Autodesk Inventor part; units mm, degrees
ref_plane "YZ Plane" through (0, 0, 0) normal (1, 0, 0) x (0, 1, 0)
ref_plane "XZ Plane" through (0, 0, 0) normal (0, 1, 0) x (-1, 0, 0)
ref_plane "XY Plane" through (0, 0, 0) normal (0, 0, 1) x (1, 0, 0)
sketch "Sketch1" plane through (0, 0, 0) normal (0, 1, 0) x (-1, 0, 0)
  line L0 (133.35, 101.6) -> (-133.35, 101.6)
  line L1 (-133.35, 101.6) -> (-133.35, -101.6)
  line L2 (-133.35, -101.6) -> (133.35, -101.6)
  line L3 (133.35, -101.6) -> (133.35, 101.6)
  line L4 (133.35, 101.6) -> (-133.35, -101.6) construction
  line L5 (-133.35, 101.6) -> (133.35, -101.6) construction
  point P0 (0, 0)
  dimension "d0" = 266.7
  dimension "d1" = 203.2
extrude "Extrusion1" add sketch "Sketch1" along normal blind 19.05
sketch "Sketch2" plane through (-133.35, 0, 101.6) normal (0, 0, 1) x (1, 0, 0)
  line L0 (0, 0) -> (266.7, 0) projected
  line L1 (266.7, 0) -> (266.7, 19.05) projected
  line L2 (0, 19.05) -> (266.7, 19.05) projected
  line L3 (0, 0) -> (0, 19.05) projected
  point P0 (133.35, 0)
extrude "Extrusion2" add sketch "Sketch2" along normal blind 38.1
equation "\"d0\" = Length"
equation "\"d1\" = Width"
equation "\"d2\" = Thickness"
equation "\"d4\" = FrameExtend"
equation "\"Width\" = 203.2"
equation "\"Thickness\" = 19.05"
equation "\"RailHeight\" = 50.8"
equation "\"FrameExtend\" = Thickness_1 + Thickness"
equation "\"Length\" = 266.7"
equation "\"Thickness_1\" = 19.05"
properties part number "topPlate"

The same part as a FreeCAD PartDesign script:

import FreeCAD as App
import Part
import Sketcher

V = App.Vector
Q = App.Units.Quantity

doc = App.newDocument("Part")
body = doc.addObject("PartDesign::Body", "Body")

# Sketch on XZ plane
sketch1 = body.newObject("Sketcher::SketchObject", "Sketch")
sketch1.AttachmentSupport = (doc.getObject("XZ_Plane"), [""])
sketch1.MapMode = "FlatFace"
sketch1.addGeometry(Part.LineSegment(V(-133.35, -101.6, 0), V(-133.35, 101.6, 0)), False)
sketch1.addGeometry(Part.LineSegment(V(-133.35, 101.6, 0), V(133.35, 101.6, 0)), False)
sketch1.addGeometry(Part.LineSegment(V(133.35, 101.6, 0), V(133.35, -101.6, 0)), False)
sketch1.addGeometry(Part.LineSegment(V(133.35, -101.6, 0), V(-133.35, -101.6, 0)), False)
sketch1.addConstraint(Sketcher.Constraint("Coincident", 0, 2, 1, 1))
sketch1.addConstraint(Sketcher.Constraint("Coincident", 1, 2, 2, 1))
sketch1.addConstraint(Sketcher.Constraint("Coincident", 2, 2, 3, 1))
sketch1.addConstraint(Sketcher.Constraint("Coincident", 3, 2, 0, 1))
sketch1.addConstraint(Sketcher.Constraint("Vertical", 0))
sketch1.addConstraint(Sketcher.Constraint("Horizontal", 1))
sketch1.addConstraint(Sketcher.Constraint("Vertical", 2))
sketch1.addConstraint(Sketcher.Constraint("Horizontal", 3))
sketch1.addConstraint(Sketcher.Constraint("Symmetric", 0, 2, 2, 2, -1, 1))
sketch1.addConstraint(Sketcher.Constraint("DistanceY", 0, 1, 0, 2, Q("8 in")))
sketch1.addConstraint(Sketcher.Constraint("DistanceX", 1, 1, 1, 2, Q("10.5 in")))
pad1 = body.newObject("PartDesign::Pad", "Pad")
pad1.Profile = sketch1
pad1.Length = Q("0.75 in")
pad1.Reversed = True

# Sketch on XY plane
sketch2 = body.newObject("Sketcher::SketchObject", "Sketch001")
sketch2.AttachmentSupport = (doc.getObject("XY_Plane"), [""])
sketch2.MapMode = "FlatFace"
sketch2.AttachmentOffset = App.Placement(V(0, 0, 4 * 25.4), App.Rotation())
sketch2.addGeometry(Part.LineSegment(V(-133.35, 19.05, 0), V(-133.35, 0, 0)), False)
sketch2.addGeometry(Part.LineSegment(V(-133.35, 0, 0), V(133.35, 0, 0)), False)
sketch2.addGeometry(Part.LineSegment(V(133.35, 0, 0), V(133.35, 19.05, 0)), False)
sketch2.addGeometry(Part.LineSegment(V(133.35, 19.05, 0), V(-133.35, 19.05, 0)), False)
sketch2.addConstraint(Sketcher.Constraint("Coincident", 0, 2, 1, 1))
sketch2.addConstraint(Sketcher.Constraint("Coincident", 1, 2, 2, 1))
sketch2.addConstraint(Sketcher.Constraint("Coincident", 2, 2, 3, 1))
sketch2.addConstraint(Sketcher.Constraint("Coincident", 3, 2, 0, 1))
sketch2.addConstraint(Sketcher.Constraint("Vertical", 0))
sketch2.addConstraint(Sketcher.Constraint("Horizontal", 1))
sketch2.addConstraint(Sketcher.Constraint("Vertical", 2))
sketch2.addConstraint(Sketcher.Constraint("Horizontal", 3))
sketch2.addConstraint(Sketcher.Constraint("Symmetric", 0, 2, 1, 2, -1, 1))
sketch2.addConstraint(Sketcher.Constraint("DistanceX", 1, 1, 1, 2, Q("10.5 in")))
sketch2.addConstraint(Sketcher.Constraint("DistanceY", 0, 2, 0, 1, Q("0.75 in")))
pad2 = body.newObject("PartDesign::Pad", "Pad001")
pad2.Profile = sketch2
pad2.Length = Q("1.5 in")

doc.recompute()
